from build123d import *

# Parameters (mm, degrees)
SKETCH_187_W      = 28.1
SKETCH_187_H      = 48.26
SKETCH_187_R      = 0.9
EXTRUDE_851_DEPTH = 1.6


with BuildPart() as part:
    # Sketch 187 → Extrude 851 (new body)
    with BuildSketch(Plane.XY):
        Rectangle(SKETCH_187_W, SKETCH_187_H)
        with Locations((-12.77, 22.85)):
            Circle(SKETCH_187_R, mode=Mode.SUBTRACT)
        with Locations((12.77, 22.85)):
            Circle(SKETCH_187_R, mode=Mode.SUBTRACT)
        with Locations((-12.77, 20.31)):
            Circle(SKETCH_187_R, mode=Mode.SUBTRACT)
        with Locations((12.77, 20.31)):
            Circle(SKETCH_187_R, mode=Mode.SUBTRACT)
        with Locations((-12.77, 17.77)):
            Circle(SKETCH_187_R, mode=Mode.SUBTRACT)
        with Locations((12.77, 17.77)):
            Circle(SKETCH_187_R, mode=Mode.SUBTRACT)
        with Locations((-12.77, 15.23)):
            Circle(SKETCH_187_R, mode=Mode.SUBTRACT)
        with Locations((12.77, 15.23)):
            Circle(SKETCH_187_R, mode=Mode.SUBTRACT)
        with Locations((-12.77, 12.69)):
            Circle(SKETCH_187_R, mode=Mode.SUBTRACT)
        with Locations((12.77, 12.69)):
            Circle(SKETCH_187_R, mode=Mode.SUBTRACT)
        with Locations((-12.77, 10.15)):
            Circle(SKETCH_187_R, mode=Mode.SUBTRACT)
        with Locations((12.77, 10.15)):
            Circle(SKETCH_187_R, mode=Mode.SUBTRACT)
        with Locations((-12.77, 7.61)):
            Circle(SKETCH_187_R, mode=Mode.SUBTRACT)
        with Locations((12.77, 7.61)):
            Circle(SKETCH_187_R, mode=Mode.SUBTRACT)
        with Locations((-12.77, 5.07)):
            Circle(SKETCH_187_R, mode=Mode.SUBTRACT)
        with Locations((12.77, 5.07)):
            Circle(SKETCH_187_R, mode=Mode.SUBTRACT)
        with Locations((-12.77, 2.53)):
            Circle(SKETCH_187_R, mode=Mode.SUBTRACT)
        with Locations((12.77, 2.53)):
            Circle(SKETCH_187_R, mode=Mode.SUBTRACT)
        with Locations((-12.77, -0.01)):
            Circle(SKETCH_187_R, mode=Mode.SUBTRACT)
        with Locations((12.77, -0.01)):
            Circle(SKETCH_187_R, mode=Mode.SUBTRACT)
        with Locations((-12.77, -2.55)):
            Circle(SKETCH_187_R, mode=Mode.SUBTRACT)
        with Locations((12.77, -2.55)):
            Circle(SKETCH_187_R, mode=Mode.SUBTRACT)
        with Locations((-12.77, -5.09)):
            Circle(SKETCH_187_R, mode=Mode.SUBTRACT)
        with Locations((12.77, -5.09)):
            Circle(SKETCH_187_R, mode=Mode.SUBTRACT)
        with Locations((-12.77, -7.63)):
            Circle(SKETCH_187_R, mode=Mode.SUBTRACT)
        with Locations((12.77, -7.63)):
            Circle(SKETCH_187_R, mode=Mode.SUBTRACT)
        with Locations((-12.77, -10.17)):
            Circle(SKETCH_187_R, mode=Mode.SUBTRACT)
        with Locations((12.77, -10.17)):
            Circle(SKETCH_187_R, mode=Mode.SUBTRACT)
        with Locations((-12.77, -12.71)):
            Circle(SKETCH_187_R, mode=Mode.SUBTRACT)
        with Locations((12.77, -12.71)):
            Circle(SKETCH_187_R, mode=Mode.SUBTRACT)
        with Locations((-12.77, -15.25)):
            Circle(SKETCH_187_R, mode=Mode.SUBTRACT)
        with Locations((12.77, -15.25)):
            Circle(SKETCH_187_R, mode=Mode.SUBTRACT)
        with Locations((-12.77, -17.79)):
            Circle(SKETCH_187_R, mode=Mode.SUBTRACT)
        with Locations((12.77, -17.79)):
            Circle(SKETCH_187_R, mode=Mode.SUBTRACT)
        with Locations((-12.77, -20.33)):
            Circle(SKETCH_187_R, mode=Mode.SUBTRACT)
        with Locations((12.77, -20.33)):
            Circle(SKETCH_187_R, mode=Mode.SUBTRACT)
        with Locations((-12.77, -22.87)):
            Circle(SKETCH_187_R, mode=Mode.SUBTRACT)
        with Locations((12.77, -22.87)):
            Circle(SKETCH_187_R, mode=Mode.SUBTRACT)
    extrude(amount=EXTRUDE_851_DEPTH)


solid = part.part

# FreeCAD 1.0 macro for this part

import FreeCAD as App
import Part
import Sketcher

V = App.Vector

doc = App.newDocument("Part")
params = doc.addObject("Spreadsheet::Sheet", "Params")
for row, (alias, value) in enumerate([
    ("sketch1_diameter", "1.8 mm"),
    ("sketch1_width", "28.1 mm"),
    ("sketch1_height", "48.26 mm"),
    ("pad1_length", "1.6 mm"),
], start=1):
    params.set(f"A{row}", alias)
    params.set(f"B{row}", "=" + value)
    params.setAlias(f"B{row}", alias)

body = doc.addObject("PartDesign::Body", "Body")

# Sketch on XY plane
sketch1 = body.newObject("Sketcher::SketchObject", "Sketch")
sketch1.AttachmentSupport = (doc.getObject("XY_Plane"), [""])
sketch1.MapMode = "FlatFace"
sketch1.addGeometry(Part.LineSegment(V(-14.05, 24.13, 0), V(-14.05, -24.13, 0)), False)
sketch1.addGeometry(Part.LineSegment(V(-14.05, -24.13, 0), V(14.05, -24.13, 0)), False)
sketch1.addGeometry(Part.LineSegment(V(14.05, -24.13, 0), V(14.05, 24.13, 0)), False)
sketch1.addGeometry(Part.LineSegment(V(14.05, 24.13, 0), V(-14.05, 24.13, 0)), False)
sketch1.addGeometry(Part.Circle(V(-12.77, -22.87, 0), V(0, 0, 1), 0.9), False)
sketch1.addGeometry(Part.Circle(V(-12.77, -20.33, 0), V(0, 0, 1), 0.9), False)
sketch1.addGeometry(Part.Circle(V(-12.77, -17.79, 0), V(0, 0, 1), 0.9), False)
sketch1.addGeometry(Part.Circle(V(-12.77, -15.25, 0), V(0, 0, 1), 0.9), False)
sketch1.addGeometry(Part.Circle(V(-12.77, -12.71, 0), V(0, 0, 1), 0.9), False)
sketch1.addGeometry(Part.Circle(V(-12.77, -10.17, 0), V(0, 0, 1), 0.9), False)
sketch1.addGeometry(Part.Circle(V(-12.77, -7.63, 0), V(0, 0, 1), 0.9), False)
sketch1.addGeometry(Part.Circle(V(-12.77, -5.09, 0), V(0, 0, 1), 0.9), False)
sketch1.addGeometry(Part.Circle(V(-12.77, -2.55, 0), V(0, 0, 1), 0.9), False)
sketch1.addGeometry(Part.Circle(V(12.77, -22.87, 0), V(0, 0, 1), 0.9), False)
sketch1.addGeometry(Part.Circle(V(12.77, -20.33, 0), V(0, 0, 1), 0.9), False)
sketch1.addGeometry(Part.Circle(V(12.77, -17.79, 0), V(0, 0, 1), 0.9), False)
sketch1.addGeometry(Part.Circle(V(12.77, -15.25, 0), V(0, 0, 1), 0.9), False)
sketch1.addGeometry(Part.Circle(V(12.77, -12.71, 0), V(0, 0, 1), 0.9), False)
sketch1.addGeometry(Part.Circle(V(12.77, -10.17, 0), V(0, 0, 1), 0.9), False)
sketch1.addGeometry(Part.Circle(V(12.77, -7.63, 0), V(0, 0, 1), 0.9), False)
sketch1.addGeometry(Part.Circle(V(12.77, -5.09, 0), V(0, 0, 1), 0.9), False)
sketch1.addGeometry(Part.Circle(V(12.77, -2.55, 0), V(0, 0, 1), 0.9), False)
sketch1.addGeometry(Part.Circle(V(-12.77, -0.01, 0), V(0, 0, 1), 0.9), False)
sketch1.addGeometry(Part.Circle(V(-12.77, 2.53, 0), V(0, 0, 1), 0.9), False)
sketch1.addGeometry(Part.Circle(V(-12.77, 5.07, 0), V(0, 0, 1), 0.9), False)
sketch1.addGeometry(Part.Circle(V(-12.77, 7.61, 0), V(0, 0, 1), 0.9), False)
sketch1.addGeometry(Part.Circle(V(-12.77, 10.15, 0), V(0, 0, 1), 0.9), False)
sketch1.addGeometry(Part.Circle(V(-12.77, 12.69, 0), V(0, 0, 1), 0.9), False)
sketch1.addGeometry(Part.Circle(V(-12.77, 15.23, 0), V(0, 0, 1), 0.9), False)
sketch1.addGeometry(Part.Circle(V(-12.77, 17.77, 0), V(0, 0, 1), 0.9), False)
sketch1.addGeometry(Part.Circle(V(-12.77, 20.31, 0), V(0, 0, 1), 0.9), False)
sketch1.addGeometry(Part.Circle(V(-12.77, 22.85, 0), V(0, 0, 1), 0.9), False)
sketch1.addGeometry(Part.Circle(V(12.77, -0.01, 0), V(0, 0, 1), 0.9), False)
sketch1.addGeometry(Part.Circle(V(12.77, 2.53, 0), V(0, 0, 1), 0.9), False)
sketch1.addGeometry(Part.Circle(V(12.77, 5.07, 0), V(0, 0, 1), 0.9), False)
sketch1.addGeometry(Part.Circle(V(12.77, 7.61, 0), V(0, 0, 1), 0.9), False)
sketch1.addGeometry(Part.Circle(V(12.77, 10.15, 0), V(0, 0, 1), 0.9), False)
sketch1.addGeometry(Part.Circle(V(12.77, 12.69, 0), V(0, 0, 1), 0.9), False)
sketch1.addGeometry(Part.Circle(V(12.77, 15.23, 0), V(0, 0, 1), 0.9), False)
sketch1.addGeometry(Part.Circle(V(12.77, 17.77, 0), V(0, 0, 1), 0.9), False)
sketch1.addGeometry(Part.Circle(V(12.77, 20.31, 0), V(0, 0, 1), 0.9), False)
sketch1.addGeometry(Part.Circle(V(12.77, 22.85, 0), V(0, 0, 1), 0.9), False)
sketch1.addConstraint(Sketcher.Constraint("Coincident", 0, 2, 1, 1))
sketch1.addConstraint(Sketcher.Constraint("Coincident", 1, 2, 2, 1))
sketch1.addConstraint(Sketcher.Constraint("Coincident", 2, 2, 3, 1))
sketch1.addConstraint(Sketcher.Constraint("Coincident", 3, 2, 0, 1))
sketch1.addConstraint(Sketcher.Constraint("Vertical", 0))
sketch1.addConstraint(Sketcher.Constraint("Horizontal", 1))
sketch1.addConstraint(Sketcher.Constraint("Vertical", 2))
sketch1.addConstraint(Sketcher.Constraint("Horizontal", 3))
sketch1.addConstraint(Sketcher.Constraint("Equal", 4, 5))
sketch1.addConstraint(Sketcher.Constraint("Equal", 5, 6))
sketch1.addConstraint(Sketcher.Constraint("Equal", 6, 7))
sketch1.addConstraint(Sketcher.Constraint("Equal", 7, 8))
sketch1.addConstraint(Sketcher.Constraint("Equal", 8, 9))
sketch1.addConstraint(Sketcher.Constraint("Equal", 9, 10))
sketch1.addConstraint(Sketcher.Constraint("Equal", 10, 11))
sketch1.addConstraint(Sketcher.Constraint("Equal", 11, 12))
sketch1.addConstraint(Sketcher.Constraint("Equal", 12, 13))
sketch1.addConstraint(Sketcher.Constraint("Equal", 13, 14))
sketch1.addConstraint(Sketcher.Constraint("Equal", 14, 15))
sketch1.addConstraint(Sketcher.Constraint("Equal", 15, 16))
sketch1.addConstraint(Sketcher.Constraint("Equal", 16, 17))
sketch1.addConstraint(Sketcher.Constraint("Equal", 17, 18))
sketch1.addConstraint(Sketcher.Constraint("Equal", 18, 19))
sketch1.addConstraint(Sketcher.Constraint("Equal", 19, 20))
sketch1.addConstraint(Sketcher.Constraint("Equal", 20, 21))
sketch1.addConstraint(Sketcher.Constraint("Equal", 21, 22))
sketch1.addConstraint(Sketcher.Constraint("Equal", 22, 23))
sketch1.addConstraint(Sketcher.Constraint("Equal", 23, 24))
sketch1.addConstraint(Sketcher.Constraint("Equal", 24, 25))
sketch1.addConstraint(Sketcher.Constraint("Equal", 25, 26))
sketch1.addConstraint(Sketcher.Constraint("Equal", 26, 27))
sketch1.addConstraint(Sketcher.Constraint("Equal", 27, 28))
sketch1.addConstraint(Sketcher.Constraint("Equal", 28, 29))
sketch1.addConstraint(Sketcher.Constraint("Equal", 29, 30))
sketch1.addConstraint(Sketcher.Constraint("Equal", 30, 31))
sketch1.addConstraint(Sketcher.Constraint("Equal", 31, 32))
sketch1.addConstraint(Sketcher.Constraint("Equal", 32, 33))
sketch1.addConstraint(Sketcher.Constraint("Equal", 33, 34))
sketch1.addConstraint(Sketcher.Constraint("Equal", 34, 35))
sketch1.addConstraint(Sketcher.Constraint("Equal", 35, 36))
sketch1.addConstraint(Sketcher.Constraint("Equal", 36, 37))
sketch1.addConstraint(Sketcher.Constraint("Equal", 37, 38))
sketch1.addConstraint(Sketcher.Constraint("Equal", 38, 39))
sketch1.addConstraint(Sketcher.Constraint("Equal", 39, 40))
sketch1.addConstraint(Sketcher.Constraint("Equal", 40, 41))
sketch1.addConstraint(Sketcher.Constraint("Symmetric", 0, 2, 2, 2, -1, 1))
sketch1.addConstraint(Sketcher.Constraint("Symmetric", 4, 3, 13, 3, -2))
sketch1.addConstraint(Sketcher.Constraint("Symmetric", 5, 3, 14, 3, -2))
sketch1.addConstraint(Sketcher.Constraint("Symmetric", 6, 3, 15, 3, -2))
sketch1.addConstraint(Sketcher.Constraint("Symmetric", 7, 3, 16, 3, -2))
sketch1.addConstraint(Sketcher.Constraint("Symmetric", 8, 3, 17, 3, -2))
sketch1.addConstraint(Sketcher.Constraint("Symmetric", 9, 3, 18, 3, -2))
sketch1.addConstraint(Sketcher.Constraint("Symmetric", 10, 3, 19, 3, -2))
sketch1.addConstraint(Sketcher.Constraint("Symmetric", 11, 3, 20, 3, -2))
sketch1.addConstraint(Sketcher.Constraint("Symmetric", 12, 3, 21, 3, -2))
sketch1.addConstraint(Sketcher.Constraint("Symmetric", 22, 3, 32, 3, -2))
sketch1.addConstraint(Sketcher.Constraint("Symmetric", 23, 3, 33, 3, -2))
sketch1.addConstraint(Sketcher.Constraint("Symmetric", 24, 3, 34, 3, -2))
sketch1.addConstraint(Sketcher.Constraint("Symmetric", 25, 3, 35, 3, -2))
sketch1.addConstraint(Sketcher.Constraint("Symmetric", 26, 3, 36, 3, -2))
sketch1.addConstraint(Sketcher.Constraint("Symmetric", 27, 3, 37, 3, -2))
sketch1.addConstraint(Sketcher.Constraint("Symmetric", 28, 3, 38, 3, -2))
sketch1.addConstraint(Sketcher.Constraint("Symmetric", 29, 3, 39, 3, -2))
sketch1.addConstraint(Sketcher.Constraint("Symmetric", 30, 3, 40, 3, -2))
sketch1.addConstraint(Sketcher.Constraint("Symmetric", 31, 3, 41, 3, -2))
sketch1.addConstraint(Sketcher.Constraint("Vertical", 4, 3, 5, 3))
sketch1.addConstraint(Sketcher.Constraint("Vertical", 5, 3, 6, 3))
sketch1.addConstraint(Sketcher.Constraint("Vertical", 6, 3, 7, 3))
sketch1.addConstraint(Sketcher.Constraint("Vertical", 7, 3, 8, 3))
sketch1.addConstraint(Sketcher.Constraint("Vertical", 8, 3, 9, 3))
sketch1.addConstraint(Sketcher.Constraint("Vertical", 9, 3, 10, 3))
sketch1.addConstraint(Sketcher.Constraint("Vertical", 10, 3, 11, 3))
sketch1.addConstraint(Sketcher.Constraint("Vertical", 11, 3, 12, 3))
sketch1.addConstraint(Sketcher.Constraint("Vertical", 12, 3, 22, 3))
sketch1.addConstraint(Sketcher.Constraint("Vertical", 22, 3, 23, 3))
sketch1.addConstraint(Sketcher.Constraint("Vertical", 23, 3, 24, 3))
sketch1.addConstraint(Sketcher.Constraint("Vertical", 24, 3, 25, 3))
sketch1.addConstraint(Sketcher.Constraint("Vertical", 25, 3, 26, 3))
sketch1.addConstraint(Sketcher.Constraint("Vertical", 26, 3, 27, 3))
sketch1.addConstraint(Sketcher.Constraint("Vertical", 27, 3, 28, 3))
sketch1.addConstraint(Sketcher.Constraint("Vertical", 28, 3, 29, 3))
sketch1.addConstraint(Sketcher.Constraint("Vertical", 29, 3, 30, 3))
sketch1.addConstraint(Sketcher.Constraint("Vertical", 30, 3, 31, 3))
sketch1.addConstraint(Sketcher.Constraint("Diameter", 4, 1.8))
sketch1.addConstraint(Sketcher.Constraint("DistanceX", 1, 1, 1, 2, 28.1))
sketch1.addConstraint(Sketcher.Constraint("DistanceY", 0, 2, 0, 1, 48.26))
sketch1.addConstraint(Sketcher.Constraint("DistanceY", 4, 3, 9, 3, 12.7))
sketch1.addConstraint(Sketcher.Constraint("DistanceY", 5, 3, 10, 3, 12.7))
sketch1.addConstraint(Sketcher.Constraint("DistanceY", 6, 3, 11, 3, 12.7))
sketch1.addConstraint(Sketcher.Constraint("DistanceY", 7, 3, 12, 3, 12.7))
sketch1.addConstraint(Sketcher.Constraint("DistanceY", 8, 3, 22, 3, 12.7))
sketch1.addConstraint(Sketcher.Constraint("DistanceY", 9, 3, 23, 3, 12.7))
sketch1.addConstraint(Sketcher.Constraint("DistanceY", 10, 3, 24, 3, 12.7))
sketch1.addConstraint(Sketcher.Constraint("DistanceY", 11, 3, 25, 3, 12.7))
sketch1.addConstraint(Sketcher.Constraint("DistanceY", 12, 3, 26, 3, 12.7))
sketch1.addConstraint(Sketcher.Constraint("DistanceY", 22, 3, 27, 3, 12.7))
sketch1.addConstraint(Sketcher.Constraint("DistanceY", 23, 3, 28, 3, 12.7))
sketch1.addConstraint(Sketcher.Constraint("DistanceY", 24, 3, 29, 3, 12.7))
sketch1.addConstraint(Sketcher.Constraint("DistanceY", 25, 3, 30, 3, 12.7))
sketch1.addConstraint(Sketcher.Constraint("DistanceY", 26, 3, 31, 3, 12.7))
sketch1.addConstraint(Sketcher.Constraint("DistanceY", 0, 2, 5, 3, 3.8))
sketch1.addConstraint(Sketcher.Constraint("DistanceY", 38, 3, 2, 2, 8.9))
sketch1.addConstraint(Sketcher.Constraint("DistanceX", 4, 3, -1, 1, 12.77))
sketch1.addConstraint(Sketcher.Constraint("DistanceY", 6, 3, -1, 1, 17.79))
sketch1.addConstraint(Sketcher.Constraint("DistanceY", 7, 3, -1, 1, 15.25))
sketch1.addConstraint(Sketcher.Constraint("DistanceY", 8, 3, -1, 1, 12.71))
sketch1.setExpression("Constraints[83]", "Params.sketch1_diameter")
sketch1.setExpression("Constraints[84]", "Params.sketch1_width")
sketch1.setExpression("Constraints[85]", "Params.sketch1_height")
pad1 = body.newObject("PartDesign::Pad", "Pad")
pad1.Profile = sketch1
pad1.setExpression("Length", "Params.pad1_length")

doc.recompute()
